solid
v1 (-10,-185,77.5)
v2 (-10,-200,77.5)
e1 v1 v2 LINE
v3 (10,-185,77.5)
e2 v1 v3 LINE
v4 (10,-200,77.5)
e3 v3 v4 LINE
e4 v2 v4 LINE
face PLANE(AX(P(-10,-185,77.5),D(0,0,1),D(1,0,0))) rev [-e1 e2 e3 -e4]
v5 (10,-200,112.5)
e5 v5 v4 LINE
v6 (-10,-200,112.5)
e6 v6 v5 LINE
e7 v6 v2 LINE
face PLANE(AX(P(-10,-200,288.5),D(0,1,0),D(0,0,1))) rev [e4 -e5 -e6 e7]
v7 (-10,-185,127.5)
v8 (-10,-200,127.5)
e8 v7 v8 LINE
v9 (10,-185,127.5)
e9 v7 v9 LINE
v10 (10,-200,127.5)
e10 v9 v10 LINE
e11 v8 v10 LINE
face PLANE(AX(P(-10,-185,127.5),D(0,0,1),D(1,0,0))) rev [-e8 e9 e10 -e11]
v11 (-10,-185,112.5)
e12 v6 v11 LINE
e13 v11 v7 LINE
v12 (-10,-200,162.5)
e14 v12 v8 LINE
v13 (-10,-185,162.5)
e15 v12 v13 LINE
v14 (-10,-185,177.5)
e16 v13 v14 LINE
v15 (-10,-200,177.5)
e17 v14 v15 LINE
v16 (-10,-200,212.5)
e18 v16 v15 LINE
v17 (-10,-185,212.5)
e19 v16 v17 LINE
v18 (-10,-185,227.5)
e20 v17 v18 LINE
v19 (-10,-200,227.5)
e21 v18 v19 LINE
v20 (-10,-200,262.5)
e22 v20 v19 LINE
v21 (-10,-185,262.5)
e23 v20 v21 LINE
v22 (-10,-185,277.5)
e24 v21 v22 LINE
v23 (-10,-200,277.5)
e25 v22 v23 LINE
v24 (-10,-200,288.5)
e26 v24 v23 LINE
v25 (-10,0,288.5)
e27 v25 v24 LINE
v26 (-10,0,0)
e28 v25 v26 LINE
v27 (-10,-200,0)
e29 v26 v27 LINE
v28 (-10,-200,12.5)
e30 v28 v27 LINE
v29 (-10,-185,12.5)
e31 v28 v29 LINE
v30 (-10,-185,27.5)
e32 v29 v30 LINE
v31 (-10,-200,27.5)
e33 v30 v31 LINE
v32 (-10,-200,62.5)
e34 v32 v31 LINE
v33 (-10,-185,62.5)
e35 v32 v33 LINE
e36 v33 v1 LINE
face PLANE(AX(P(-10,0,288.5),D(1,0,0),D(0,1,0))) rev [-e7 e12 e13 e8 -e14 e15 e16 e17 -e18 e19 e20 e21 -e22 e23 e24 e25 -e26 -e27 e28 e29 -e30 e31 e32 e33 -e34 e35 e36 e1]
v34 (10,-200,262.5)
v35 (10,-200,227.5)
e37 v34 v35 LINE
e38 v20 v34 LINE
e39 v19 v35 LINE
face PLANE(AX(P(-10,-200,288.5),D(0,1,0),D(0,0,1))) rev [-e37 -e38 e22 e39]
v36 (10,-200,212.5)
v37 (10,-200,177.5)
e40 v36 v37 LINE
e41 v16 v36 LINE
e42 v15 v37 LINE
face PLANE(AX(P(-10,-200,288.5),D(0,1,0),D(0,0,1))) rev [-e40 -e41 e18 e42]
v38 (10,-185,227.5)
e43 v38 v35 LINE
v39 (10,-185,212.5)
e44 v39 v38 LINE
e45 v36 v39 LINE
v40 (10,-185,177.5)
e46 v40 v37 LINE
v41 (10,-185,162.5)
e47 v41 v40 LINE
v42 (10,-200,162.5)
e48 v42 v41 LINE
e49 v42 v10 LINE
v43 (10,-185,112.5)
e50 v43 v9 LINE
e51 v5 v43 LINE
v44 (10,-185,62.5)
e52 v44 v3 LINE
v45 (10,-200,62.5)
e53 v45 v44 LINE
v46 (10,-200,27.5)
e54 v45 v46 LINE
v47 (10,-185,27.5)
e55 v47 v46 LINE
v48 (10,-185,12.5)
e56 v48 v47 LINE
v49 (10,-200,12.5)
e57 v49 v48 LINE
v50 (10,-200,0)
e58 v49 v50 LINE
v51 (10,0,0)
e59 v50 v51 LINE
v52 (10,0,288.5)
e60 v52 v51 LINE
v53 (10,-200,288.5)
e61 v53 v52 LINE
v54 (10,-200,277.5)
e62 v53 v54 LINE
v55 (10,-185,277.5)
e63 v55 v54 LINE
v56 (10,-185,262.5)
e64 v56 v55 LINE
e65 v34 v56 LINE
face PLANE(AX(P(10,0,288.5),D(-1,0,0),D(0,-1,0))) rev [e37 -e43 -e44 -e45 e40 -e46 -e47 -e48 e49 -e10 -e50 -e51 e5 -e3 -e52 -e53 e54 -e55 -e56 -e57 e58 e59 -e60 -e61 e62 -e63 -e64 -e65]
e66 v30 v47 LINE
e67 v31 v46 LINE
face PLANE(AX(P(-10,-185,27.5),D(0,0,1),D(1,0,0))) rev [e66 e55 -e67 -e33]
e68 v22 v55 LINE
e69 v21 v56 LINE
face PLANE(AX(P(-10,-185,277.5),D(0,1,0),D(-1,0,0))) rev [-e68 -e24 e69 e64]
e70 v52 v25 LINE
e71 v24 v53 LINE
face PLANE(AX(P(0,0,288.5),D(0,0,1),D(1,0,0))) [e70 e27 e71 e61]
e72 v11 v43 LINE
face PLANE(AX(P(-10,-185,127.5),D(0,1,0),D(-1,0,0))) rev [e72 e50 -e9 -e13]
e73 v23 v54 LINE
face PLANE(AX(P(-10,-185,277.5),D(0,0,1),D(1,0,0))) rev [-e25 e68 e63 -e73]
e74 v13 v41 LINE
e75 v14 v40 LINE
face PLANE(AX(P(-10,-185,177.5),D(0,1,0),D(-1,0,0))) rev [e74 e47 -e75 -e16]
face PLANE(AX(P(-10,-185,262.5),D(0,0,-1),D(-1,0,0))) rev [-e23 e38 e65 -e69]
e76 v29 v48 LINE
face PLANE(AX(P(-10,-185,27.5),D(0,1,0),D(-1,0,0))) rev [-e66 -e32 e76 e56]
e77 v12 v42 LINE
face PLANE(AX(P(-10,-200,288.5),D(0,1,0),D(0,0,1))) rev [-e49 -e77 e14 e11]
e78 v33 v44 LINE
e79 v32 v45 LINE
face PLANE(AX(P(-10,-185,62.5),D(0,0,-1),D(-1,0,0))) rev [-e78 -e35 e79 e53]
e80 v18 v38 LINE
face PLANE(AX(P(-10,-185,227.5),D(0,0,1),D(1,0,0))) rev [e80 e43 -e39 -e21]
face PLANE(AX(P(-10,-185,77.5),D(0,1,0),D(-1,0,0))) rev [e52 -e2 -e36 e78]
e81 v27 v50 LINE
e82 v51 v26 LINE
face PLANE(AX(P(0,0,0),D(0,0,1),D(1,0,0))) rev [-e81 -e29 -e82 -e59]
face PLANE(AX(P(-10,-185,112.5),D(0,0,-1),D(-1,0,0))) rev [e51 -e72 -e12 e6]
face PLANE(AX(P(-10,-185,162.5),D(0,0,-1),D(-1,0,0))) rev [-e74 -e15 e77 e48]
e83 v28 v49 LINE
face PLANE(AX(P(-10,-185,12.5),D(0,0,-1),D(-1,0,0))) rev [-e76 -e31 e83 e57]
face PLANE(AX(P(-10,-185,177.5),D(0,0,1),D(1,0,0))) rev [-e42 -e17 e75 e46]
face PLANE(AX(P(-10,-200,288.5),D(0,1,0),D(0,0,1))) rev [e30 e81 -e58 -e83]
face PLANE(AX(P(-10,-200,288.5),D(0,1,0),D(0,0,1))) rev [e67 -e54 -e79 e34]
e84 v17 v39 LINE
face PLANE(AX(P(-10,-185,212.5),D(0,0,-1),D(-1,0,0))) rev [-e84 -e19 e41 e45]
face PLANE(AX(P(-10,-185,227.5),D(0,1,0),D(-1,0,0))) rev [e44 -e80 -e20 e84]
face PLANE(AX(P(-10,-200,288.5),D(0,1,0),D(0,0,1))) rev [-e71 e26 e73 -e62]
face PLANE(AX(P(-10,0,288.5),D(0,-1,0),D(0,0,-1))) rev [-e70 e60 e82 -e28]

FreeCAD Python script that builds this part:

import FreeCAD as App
import Part
import Sketcher


def add_polygon(sketch, points):
    """Adds a closed chain of lines whose ends are joined by coincident constraints."""
    first, n = sketch.GeometryCount, len(points)
    for a, b in zip(points, points[1:] + points[:1]):
        sketch.addGeometry(Part.LineSegment(App.Vector(*a, 0), App.Vector(*b, 0)), False)
    for i in range(n):
        sketch.addConstraint(Sketcher.Constraint("Coincident", first + i, 2, first + (i + 1) % n, 1))

doc = App.newDocument("Part")
body = doc.addObject("PartDesign::Body", "Body")

sketch1 = body.newObject("Sketcher::SketchObject", "Sketch")
sketch1.AttachmentSupport = (doc.getObject("XY_Plane"), [""])
sketch1.MapMode = "FlatFace"
add_polygon(sketch1, [(-10, 0), (-10, -200), (10, -200), (10, 0)])
sketch1.addConstraint(Sketcher.Constraint("Vertical", 0))
sketch1.addConstraint(Sketcher.Constraint("Horizontal", 1))
sketch1.addConstraint(Sketcher.Constraint("Vertical", 2))
sketch1.addConstraint(Sketcher.Constraint("Horizontal", 3))
sketch1.addConstraint(Sketcher.Constraint("Symmetric", 2, 2, 3, 2, -1, 1))
sketch1.addConstraint(Sketcher.Constraint("DistanceX", 1, 1, 1, 2, 20.0))
sketch1.addConstraint(Sketcher.Constraint("DistanceY", 0, 2, 0, 1, 200.0))
pad1 = body.newObject("PartDesign::Pad", "Pad")
pad1.Profile = sketch1
pad1.Length = 288.5

sketch2 = body.newObject("Sketcher::SketchObject", "Sketch001")
sketch2.AttachmentSupport = (doc.getObject("YZ_Plane"), [""])
sketch2.MapMode = "FlatFace"
sketch2.AttachmentOffset = App.Placement(App.Vector(0, 0, 10), App.Rotation())
add_polygon(sketch2, [(-185, 278), (-200, 278), (-200, 262), (-185, 262)])
add_polygon(sketch2, [(-185, 228), (-200, 228), (-200, 212), (-185, 212)])
add_polygon(sketch2, [(-185, 178), (-200, 178), (-200, 162), (-185, 162)])
add_polygon(sketch2, [(-185, 128), (-200, 128), (-200, 112), (-185, 112)])
add_polygon(sketch2, [(-185, 78), (-200, 78), (-200, 62), (-185, 62)])
add_polygon(sketch2, [(-185, 28), (-200, 28), (-200, 12), (-185, 12)])
sketch2.addConstraint(Sketcher.Constraint("Horizontal", 0))
sketch2.addConstraint(Sketcher.Constraint("Vertical", 1))
sketch2.addConstraint(Sketcher.Constraint("Horizontal", 2))
sketch2.addConstraint(Sketcher.Constraint("Vertical", 3))
sketch2.addConstraint(Sketcher.Constraint("Horizontal", 4))
sketch2.addConstraint(Sketcher.Constraint("Vertical", 5))
sketch2.addConstraint(Sketcher.Constraint("Horizontal", 6))
sketch2.addConstraint(Sketcher.Constraint("Vertical", 7))
sketch2.addConstraint(Sketcher.Constraint("Horizontal", 8))
sketch2.addConstraint(Sketcher.Constraint("Vertical", 9))
sketch2.addConstraint(Sketcher.Constraint("Horizontal", 10))
sketch2.addConstraint(Sketcher.Constraint("Vertical", 11))
sketch2.addConstraint(Sketcher.Constraint("Horizontal", 12))
sketch2.addConstraint(Sketcher.Constraint("Vertical", 13))
sketch2.addConstraint(Sketcher.Constraint("Horizontal", 14))
sketch2.addConstraint(Sketcher.Constraint("Vertical", 15))
sketch2.addConstraint(Sketcher.Constraint("Horizontal", 16))
sketch2.addConstraint(Sketcher.Constraint("Vertical", 17))
sketch2.addConstraint(Sketcher.Constraint("Horizontal", 18))
sketch2.addConstraint(Sketcher.Constraint("Vertical", 19))
sketch2.addConstraint(Sketcher.Constraint("Horizontal", 20))
sketch2.addConstraint(Sketcher.Constraint("Vertical", 21))
sketch2.addConstraint(Sketcher.Constraint("Horizontal", 22))
sketch2.addConstraint(Sketcher.Constraint("Vertical", 23))
sketch2.addConstraint(Sketcher.Constraint("Vertical", 1, 2, 4, 2))
sketch2.addConstraint(Sketcher.Constraint("Vertical", 3, 2, 6, 2))
sketch2.addConstraint(Sketcher.Constraint("Vertical", 5, 2, 8, 2))
sketch2.addConstraint(Sketcher.Constraint("Vertical", 7, 2, 10, 2))
sketch2.addConstraint(Sketcher.Constraint("Vertical", 9, 2, 12, 2))
sketch2.addConstraint(Sketcher.Constraint("Vertical", 11, 2, 14, 2))
sketch2.addConstraint(Sketcher.Constraint("Vertical", 13, 2, 16, 2))
sketch2.addConstraint(Sketcher.Constraint("Vertical", 15, 2, 18, 2))
sketch2.addConstraint(Sketcher.Constraint("Vertical", 17, 2, 20, 2))
sketch2.addConstraint(Sketcher.Constraint("Vertical", 19, 2, 22, 2))
sketch2.addConstraint(Sketcher.Constraint("Equal", 22, 1))
sketch2.addConstraint(Sketcher.Constraint("Equal", 3, 5))
sketch2.addConstraint(Sketcher.Constraint("Equal", 7, 9))
sketch2.addConstraint(Sketcher.Constraint("Equal", 11, 13))
sketch2.addConstraint(Sketcher.Constraint("Equal", 15, 17))
sketch2.addConstraint(Sketcher.Constraint("Equal", 19, 21))
sketch2.addConstraint(Sketcher.Constraint("DistanceX", 0, 2, 0, 1, 15.0))
sketch2.addConstraint(Sketcher.Constraint("DistanceX", 0, 2, -1, 1, 200.0))
sketch2.addConstraint(Sketcher.Constraint("DistanceY", 4, 2, 1, 2, 35.0))
sketch2.addConstraint(Sketcher.Constraint("DistanceY", 8, 2, 5, 2, 35.0))
sketch2.addConstraint(Sketcher.Constraint("DistanceY", 12, 2, 9, 2, 35.0))
sketch2.addConstraint(Sketcher.Constraint("DistanceY", 16, 2, 13, 2, 35.0))
sketch2.addConstraint(Sketcher.Constraint("DistanceY", 20, 2, 17, 2, 35.0))
sketch2.addConstraint(Sketcher.Constraint("DistanceY", -1, 1, 0, 2, 277.5))
pocket1 = body.newObject("PartDesign::Pocket", "Pocket")
pocket1.Profile = sketch2
pocket1.Length = 20

doc.recompute()
